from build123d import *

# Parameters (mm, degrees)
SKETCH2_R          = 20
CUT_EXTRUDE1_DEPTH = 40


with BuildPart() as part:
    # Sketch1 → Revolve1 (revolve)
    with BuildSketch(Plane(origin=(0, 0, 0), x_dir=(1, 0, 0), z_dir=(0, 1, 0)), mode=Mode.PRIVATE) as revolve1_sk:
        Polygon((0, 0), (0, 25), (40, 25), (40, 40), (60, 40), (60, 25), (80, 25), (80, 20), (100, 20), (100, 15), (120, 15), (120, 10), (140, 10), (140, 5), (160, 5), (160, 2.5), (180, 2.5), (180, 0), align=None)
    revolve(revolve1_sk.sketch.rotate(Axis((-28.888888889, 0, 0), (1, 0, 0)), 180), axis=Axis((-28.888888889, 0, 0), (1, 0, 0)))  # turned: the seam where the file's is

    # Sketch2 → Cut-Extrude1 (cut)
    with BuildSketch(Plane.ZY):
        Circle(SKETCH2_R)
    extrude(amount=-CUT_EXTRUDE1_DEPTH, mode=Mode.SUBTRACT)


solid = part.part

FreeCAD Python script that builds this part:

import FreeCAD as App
import Part
import Sketcher


def add_polygon(sketch, points):
    """Adds a closed chain of lines whose ends are joined by coincident constraints."""
    first, n = sketch.GeometryCount, len(points)
    for a, b in zip(points, points[1:] + points[:1]):
        sketch.addGeometry(Part.LineSegment(App.Vector(*a, 0), App.Vector(*b, 0)), False)
    for i in range(n):
        sketch.addConstraint(Sketcher.Constraint("Coincident", first + i, 2, first + (i + 1) % n, 1))

doc = App.newDocument("Part")
body = doc.addObject("PartDesign::Body", "Body")

# Sketch on XZ plane
sketch1 = body.newObject("Sketcher::SketchObject", "Sketch")
sketch1.AttachmentSupport = (doc.getObject("XZ_Plane"), [""])
sketch1.MapMode = "FlatFace"
add_polygon(sketch1, [(0, -25), (0, 0), (180, 0), (180, -2.5), (160, -2.5), (160, -5), (140, -5), (140, -10), (120, -10), (120, -15), (100, -15), (100, -20), (80, -20), (80, -25), (60, -25), (60, -40), (40, -40), (40, -25)])  # lines 0-17
sketch1.addConstraint([
    Sketcher.Constraint("Vertical", 0),
    Sketcher.Constraint("Horizontal", 1),
    Sketcher.Constraint("Vertical", 2),
    Sketcher.Constraint("Horizontal", 3),
    Sketcher.Constraint("Vertical", 4),
    Sketcher.Constraint("Horizontal", 5),
    Sketcher.Constraint("Vertical", 6),
    Sketcher.Constraint("Horizontal", 7),
    Sketcher.Constraint("Vertical", 8),
    Sketcher.Constraint("Horizontal", 9),
    Sketcher.Constraint("Vertical", 10),
    Sketcher.Constraint("Horizontal", 11),
    Sketcher.Constraint("Vertical", 12),
    Sketcher.Constraint("Horizontal", 13),
    Sketcher.Constraint("Vertical", 14),
    Sketcher.Constraint("Horizontal", 15),
    Sketcher.Constraint("Vertical", 16),
    Sketcher.Constraint("Horizontal", 17),
    Sketcher.Constraint("Coincident", 0, 2, -1, 1),
    Sketcher.Constraint("Horizontal", 13, 2, 16, 2),
    Sketcher.Constraint("Equal", 3, 5),
    Sketcher.Constraint("Equal", 5, 7),
    Sketcher.Constraint("Equal", 7, 9),
    Sketcher.Constraint("Equal", 9, 11),
    Sketcher.Constraint("Equal", 11, 13),
    Sketcher.Constraint("Equal", 13, 15),
    Sketcher.Constraint("Equal", 2, 4),
    Sketcher.Constraint("Equal", 6, 8),
    Sketcher.Constraint("Equal", 8, 10),
    Sketcher.Constraint("Equal", 10, 12),
    Sketcher.Constraint("DistanceX", 1, 1, 1, 2, 180.0),
    Sketcher.Constraint("DistanceX", 3, 2, 3, 1, 20.0),
    Sketcher.Constraint("DistanceY", 0, 1, 0, 2, 25.0),
    Sketcher.Constraint("DistanceY", 6, 2, 6, 1, 5.0),
    Sketcher.Constraint("DistanceY", 14, 2, 14, 1, 15.0),
])
revolution = body.newObject("PartDesign::Revolution", "Revolution")
revolution.Profile = sketch1
revolution.ReferenceAxis = (sketch1, ["H_Axis"])
revolution.Angle = 360

# Sketch on YZ plane
sketch2 = body.newObject("Sketcher::SketchObject", "Sketch001")
sketch2.AttachmentSupport = (doc.getObject("YZ_Plane"), [""])
sketch2.MapMode = "FlatFace"
sketch2.addGeometry(Part.Circle(App.Vector(0, 0, 0), App.Vector(0, 0, 1), 20), False)
sketch2.addConstraint([
    Sketcher.Constraint("Coincident", 0, 3, -1, 1),
    Sketcher.Constraint("Diameter", 0, 40.0),
])
pocket1 = body.newObject("PartDesign::Pocket", "Pocket")
pocket1.Profile = sketch2
pocket1.Length = 40
pocket1.Reversed = True

doc.recompute()
